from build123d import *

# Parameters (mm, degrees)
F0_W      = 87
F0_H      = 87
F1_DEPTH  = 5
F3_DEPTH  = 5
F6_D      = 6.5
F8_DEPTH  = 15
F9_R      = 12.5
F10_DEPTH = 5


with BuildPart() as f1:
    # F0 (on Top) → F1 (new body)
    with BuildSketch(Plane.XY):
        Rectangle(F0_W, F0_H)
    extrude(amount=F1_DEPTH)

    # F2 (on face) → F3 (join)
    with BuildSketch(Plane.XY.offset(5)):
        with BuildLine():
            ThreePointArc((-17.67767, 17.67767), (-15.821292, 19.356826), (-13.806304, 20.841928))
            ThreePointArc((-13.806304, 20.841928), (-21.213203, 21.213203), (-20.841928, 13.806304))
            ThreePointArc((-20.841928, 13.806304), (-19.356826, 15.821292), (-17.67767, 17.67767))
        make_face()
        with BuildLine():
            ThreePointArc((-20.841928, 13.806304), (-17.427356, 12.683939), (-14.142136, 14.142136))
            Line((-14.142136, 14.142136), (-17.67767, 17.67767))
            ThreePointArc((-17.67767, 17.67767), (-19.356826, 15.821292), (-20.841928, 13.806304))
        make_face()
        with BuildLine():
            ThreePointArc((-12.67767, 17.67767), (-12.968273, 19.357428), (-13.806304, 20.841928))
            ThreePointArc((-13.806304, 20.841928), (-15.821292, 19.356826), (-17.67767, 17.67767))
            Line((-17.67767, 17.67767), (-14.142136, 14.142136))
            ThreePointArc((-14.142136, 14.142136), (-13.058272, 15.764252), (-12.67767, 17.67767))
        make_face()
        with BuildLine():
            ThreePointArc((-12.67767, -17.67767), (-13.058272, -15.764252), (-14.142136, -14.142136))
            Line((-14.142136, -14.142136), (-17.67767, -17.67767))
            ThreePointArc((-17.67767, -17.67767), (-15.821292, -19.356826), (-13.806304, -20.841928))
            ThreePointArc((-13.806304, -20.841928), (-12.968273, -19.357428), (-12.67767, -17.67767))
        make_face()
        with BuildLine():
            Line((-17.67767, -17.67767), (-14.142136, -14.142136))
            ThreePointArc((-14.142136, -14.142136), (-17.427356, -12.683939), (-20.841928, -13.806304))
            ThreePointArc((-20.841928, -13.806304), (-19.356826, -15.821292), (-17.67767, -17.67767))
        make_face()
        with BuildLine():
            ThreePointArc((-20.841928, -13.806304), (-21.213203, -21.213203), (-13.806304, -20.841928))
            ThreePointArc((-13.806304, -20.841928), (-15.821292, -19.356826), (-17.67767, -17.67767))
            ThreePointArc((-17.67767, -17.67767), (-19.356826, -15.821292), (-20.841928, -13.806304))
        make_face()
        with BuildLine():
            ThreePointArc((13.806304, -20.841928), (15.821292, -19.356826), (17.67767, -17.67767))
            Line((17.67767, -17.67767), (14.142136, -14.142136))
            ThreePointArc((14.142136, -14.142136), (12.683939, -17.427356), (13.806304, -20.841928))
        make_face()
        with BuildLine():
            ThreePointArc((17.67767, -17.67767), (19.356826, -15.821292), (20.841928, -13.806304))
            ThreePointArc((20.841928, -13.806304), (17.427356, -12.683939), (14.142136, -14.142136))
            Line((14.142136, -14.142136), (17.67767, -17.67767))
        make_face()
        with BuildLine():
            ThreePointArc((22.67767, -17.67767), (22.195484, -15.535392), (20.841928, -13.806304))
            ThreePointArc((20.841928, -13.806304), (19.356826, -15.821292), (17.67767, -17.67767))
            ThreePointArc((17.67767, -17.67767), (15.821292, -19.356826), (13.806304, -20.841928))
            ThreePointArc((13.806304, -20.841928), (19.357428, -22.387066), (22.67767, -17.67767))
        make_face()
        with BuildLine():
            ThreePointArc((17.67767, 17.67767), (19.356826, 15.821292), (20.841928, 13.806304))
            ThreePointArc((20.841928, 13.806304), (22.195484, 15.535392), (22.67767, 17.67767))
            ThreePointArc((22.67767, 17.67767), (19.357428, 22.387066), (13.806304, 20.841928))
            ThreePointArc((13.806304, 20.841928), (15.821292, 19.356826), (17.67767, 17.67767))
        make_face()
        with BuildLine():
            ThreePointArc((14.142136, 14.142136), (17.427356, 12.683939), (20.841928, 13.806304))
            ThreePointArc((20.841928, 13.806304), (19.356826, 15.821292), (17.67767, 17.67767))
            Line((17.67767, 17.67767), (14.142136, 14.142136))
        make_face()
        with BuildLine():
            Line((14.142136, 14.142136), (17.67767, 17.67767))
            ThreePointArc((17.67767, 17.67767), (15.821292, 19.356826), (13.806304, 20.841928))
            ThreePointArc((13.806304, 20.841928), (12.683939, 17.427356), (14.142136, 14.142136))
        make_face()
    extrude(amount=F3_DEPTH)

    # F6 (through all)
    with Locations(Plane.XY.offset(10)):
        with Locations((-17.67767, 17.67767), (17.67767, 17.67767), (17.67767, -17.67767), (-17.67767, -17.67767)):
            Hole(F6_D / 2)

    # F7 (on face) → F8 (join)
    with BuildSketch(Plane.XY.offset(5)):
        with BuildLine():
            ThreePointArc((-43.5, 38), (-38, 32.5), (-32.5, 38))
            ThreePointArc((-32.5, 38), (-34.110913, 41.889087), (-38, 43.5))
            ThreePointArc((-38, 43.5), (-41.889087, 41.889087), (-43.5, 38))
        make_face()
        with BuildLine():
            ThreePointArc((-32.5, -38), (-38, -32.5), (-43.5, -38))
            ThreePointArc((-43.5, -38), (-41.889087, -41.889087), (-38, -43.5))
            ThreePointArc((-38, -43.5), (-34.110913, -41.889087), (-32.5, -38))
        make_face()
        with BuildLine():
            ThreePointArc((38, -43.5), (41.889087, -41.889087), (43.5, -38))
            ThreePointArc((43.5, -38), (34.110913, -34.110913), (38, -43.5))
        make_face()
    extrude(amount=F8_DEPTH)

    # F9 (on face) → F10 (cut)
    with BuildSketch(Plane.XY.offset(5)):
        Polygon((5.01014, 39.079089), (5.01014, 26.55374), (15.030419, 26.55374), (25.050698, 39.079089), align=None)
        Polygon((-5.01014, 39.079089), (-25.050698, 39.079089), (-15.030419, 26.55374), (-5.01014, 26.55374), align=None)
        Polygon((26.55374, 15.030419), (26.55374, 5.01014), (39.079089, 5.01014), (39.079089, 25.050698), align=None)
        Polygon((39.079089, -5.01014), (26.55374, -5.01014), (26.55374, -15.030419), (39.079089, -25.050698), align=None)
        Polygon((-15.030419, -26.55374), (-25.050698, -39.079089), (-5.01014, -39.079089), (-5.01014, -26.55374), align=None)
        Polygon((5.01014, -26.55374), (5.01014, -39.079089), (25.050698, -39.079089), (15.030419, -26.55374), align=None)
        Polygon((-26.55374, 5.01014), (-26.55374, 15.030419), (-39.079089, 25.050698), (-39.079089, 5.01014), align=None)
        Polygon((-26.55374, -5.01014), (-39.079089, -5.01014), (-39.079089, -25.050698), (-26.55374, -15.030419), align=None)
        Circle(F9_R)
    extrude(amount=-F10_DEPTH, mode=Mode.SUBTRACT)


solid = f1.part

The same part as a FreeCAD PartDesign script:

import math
import FreeCAD as App
import Part
import Sketcher
Q = App.Units.Quantity

doc = App.newDocument("Part")
params = doc.addObject("Spreadsheet::Sheet", "Params")
for row, (alias, value) in enumerate([
    ("sketch1_width", "87 mm"),
    ("pad1_length", "5 mm"),
    ("sketch2_radius", "5 mm"),
    ("pad2_length", "5 mm"),
    ("sketch3_diameter", "6.5 mm"),
    ("hole_diameter", "6.5 mm"),
    ("sketch4_radius", "5.5 mm"),
    ("pad3_length", "15 mm"),
    ("sketch5_diameter", "25 mm"),
    ("pocket1_length", "5 mm"),
], start=1):
    params.set(f"A{row}", alias)
    params.set(f"B{row}", "=" + value)
    params.setAlias(f"B{row}", alias)

body = doc.addObject("PartDesign::Body", "Body")

sketch1 = body.newObject("Sketcher::SketchObject", "Sketch")
sketch1.AttachmentSupport = (doc.getObject("XY_Plane"), [""])
sketch1.MapMode = "FlatFace"
sketch1.addGeometry(Part.LineSegment(App.Vector(-43.5, 43.5, 0), App.Vector(-43.5, -43.5, 0)), False)
sketch1.addGeometry(Part.LineSegment(App.Vector(-43.5, -43.5, 0), App.Vector(43.5, -43.5, 0)), False)
sketch1.addGeometry(Part.LineSegment(App.Vector(43.5, -43.5, 0), App.Vector(43.5, 43.5, 0)), False)
sketch1.addGeometry(Part.LineSegment(App.Vector(43.5, 43.5, 0), App.Vector(-43.5, 43.5, 0)), False)
sketch1.addConstraint(Sketcher.Constraint("Coincident", 0, 2, 1, 1))
sketch1.addConstraint(Sketcher.Constraint("Coincident", 1, 2, 2, 1))
sketch1.addConstraint(Sketcher.Constraint("Coincident", 2, 2, 3, 1))
sketch1.addConstraint(Sketcher.Constraint("Coincident", 3, 2, 0, 1))
sketch1.addConstraint(Sketcher.Constraint("Vertical", 0))
sketch1.addConstraint(Sketcher.Constraint("Horizontal", 1))
sketch1.addConstraint(Sketcher.Constraint("Vertical", 2))
sketch1.addConstraint(Sketcher.Constraint("Horizontal", 3))
sketch1.addConstraint(Sketcher.Constraint("Symmetric", 0, 2, 2, 2, -1, 1))
sketch1.addConstraint(Sketcher.Constraint("Equal", 3, 0))
sketch1.addConstraint(Sketcher.Constraint("DistanceX", 1, 1, 1, 2, Q("87 mm")))
sketch1.setExpression("Constraints[10]", "Params.sketch1_width")
pad1 = body.newObject("PartDesign::Pad", "Pad")
pad1.Profile = sketch1
pad1.setExpression("Length", "Params.pad1_length")

sketch2 = body.newObject("Sketcher::SketchObject", "Sketch001")
sketch2.AttachmentSupport = (doc.getObject("XY_Plane"), [""])
sketch2.MapMode = "FlatFace"
sketch2.AttachmentOffset = App.Placement(App.Vector(0, 0, 5), App.Rotation())
sketch2.addGeometry(Part.ArcOfCircle(Part.Circle(App.Vector(-17.677669, 17.677669, 0), App.Vector(0, 0, 1), 5), math.radians(39.260837), math.radians(230.739163)), False)
sketch2.addGeometry(Part.ArcOfCircle(Part.Circle(App.Vector(-17.67767, 17.677668, 0), App.Vector(0, 0, 1), 4.999999), math.radians(-129.260831), math.radians(-44.999987)), False)
sketch2.addGeometry(Part.ArcOfCircle(Part.Circle(App.Vector(-17.677663, 17.677667, 0), App.Vector(0, 0, 1), 4.999993), math.radians(-45.000031), math.radians(0.000034)), False)
sketch2.addGeometry(Part.ArcOfCircle(Part.Circle(App.Vector(-17.677662, 17.677674, 0), App.Vector(0, 0, 1), 4.999992), math.radians(-0.000041), math.radians(39.26085)), False)
sketch2.addGeometry(Part.ArcOfCircle(Part.Circle(App.Vector(-17.677663, -17.677667, 0), App.Vector(0, 0, 1), 4.999993), math.radians(-0.000034), math.radians(45.000031)), False)
sketch2.addGeometry(Part.ArcOfCircle(Part.Circle(App.Vector(-17.67767, -17.677668, 0), App.Vector(0, 0, 1), 4.999999), math.radians(44.999987), math.radians(129.260831)), False)
sketch2.addGeometry(Part.ArcOfCircle(Part.Circle(App.Vector(-17.677669, -17.677669, 0), App.Vector(0, 0, 1), 5), math.radians(129.260837), math.radians(320.739163)), False)
sketch2.addGeometry(Part.ArcOfCircle(Part.Circle(App.Vector(-17.677662, -17.677674, 0), App.Vector(0, 0, 1), 4.999992), math.radians(-39.26085), math.radians(0.000041)), False)
sketch2.addGeometry(Part.ArcOfCircle(Part.Circle(App.Vector(17.67767, -17.677668, 0), App.Vector(0, 0, 1), 4.999999), math.radians(50.739169), math.radians(135.000013)), False)
sketch2.addGeometry(Part.ArcOfCircle(Part.Circle(App.Vector(17.677668, -17.67767, 0), App.Vector(0, 0, 1), 4.999999), math.radians(134.999987), math.radians(219.260831)), False)
sketch2.addGeometry(Part.ArcOfCircle(Part.Circle(App.Vector(17.67767, -17.677669, 0), App.Vector(0, 0, 1), 5), math.radians(-140.739173), math.radians(-0.000006)), False)
sketch2.addGeometry(Part.ArcOfCircle(Part.Circle(App.Vector(17.677667, -17.677671, 0), App.Vector(0, 0, 1), 5.000003), math.radians(0.000013), math.radians(50.739159)), False)
sketch2.addGeometry(Part.ArcOfCircle(Part.Circle(App.Vector(17.677667, 17.677671, 0), App.Vector(0, 0, 1), 5.000003), math.radians(-50.739159), math.radians(-0.000013)), False)
sketch2.addGeometry(Part.ArcOfCircle(Part.Circle(App.Vector(17.67767, 17.677669, 0), App.Vector(0, 0, 1), 5), math.radians(0.000006), math.radians(140.739173)), False)
sketch2.addGeometry(Part.ArcOfCircle(Part.Circle(App.Vector(17.677668, 17.67767, 0), App.Vector(0, 0, 1), 4.999999), math.radians(140.739169), math.radians(225.000013)), False)
sketch2.addGeometry(Part.ArcOfCircle(Part.Circle(App.Vector(17.67767, 17.677668, 0), App.Vector(0, 0, 1), 4.999999), math.radians(-135.000013), math.radians(-50.739169)), False)
sketch2.addConstraint(Sketcher.Constraint("Tangent", 0, 2, 1, 1))
sketch2.addConstraint(Sketcher.Constraint("Tangent", 1, 2, 2, 1))
sketch2.addConstraint(Sketcher.Constraint("Tangent", 2, 2, 3, 1))
sketch2.addConstraint(Sketcher.Constraint("Tangent", 3, 2, 0, 1))
sketch2.addConstraint(Sketcher.Constraint("Tangent", 4, 2, 5, 1))
sketch2.addConstraint(Sketcher.Constraint("Tangent", 5, 2, 6, 1))
sketch2.addConstraint(Sketcher.Constraint("Tangent", 6, 2, 7, 1))
sketch2.addConstraint(Sketcher.Constraint("Tangent", 7, 2, 4, 1))
sketch2.addConstraint(Sketcher.Constraint("Tangent", 8, 2, 9, 1))
sketch2.addConstraint(Sketcher.Constraint("Tangent", 9, 2, 10, 1))
sketch2.addConstraint(Sketcher.Constraint("Tangent", 10, 2, 11, 1))
sketch2.addConstraint(Sketcher.Constraint("Tangent", 11, 2, 8, 1))
sketch2.addConstraint(Sketcher.Constraint("Tangent", 12, 2, 13, 1))
sketch2.addConstraint(Sketcher.Constraint("Tangent", 13, 2, 14, 1))
sketch2.addConstraint(Sketcher.Constraint("Tangent", 14, 2, 15, 1))
sketch2.addConstraint(Sketcher.Constraint("Tangent", 15, 2, 12, 1))
sketch2.addConstraint(Sketcher.Constraint("Equal", 0, 1))
sketch2.addConstraint(Sketcher.Constraint("Equal", 3, 4))
sketch2.addConstraint(Sketcher.Constraint("Equal", 1, 5))
sketch2.addConstraint(Sketcher.Constraint("Equal", 6, 8))
sketch2.addConstraint(Sketcher.Constraint("Equal", 8, 9))
sketch2.addConstraint(Sketcher.Constraint("Equal", 11, 12))
sketch2.addConstraint(Sketcher.Constraint("Equal", 10, 13))
sketch2.addConstraint(Sketcher.Constraint("Symmetric", 0, 3, 8, 3, -1, 1))
sketch2.addConstraint(Sketcher.Constraint("Symmetric", 4, 3, 12, 3, -1, 1))
sketch2.addConstraint(Sketcher.Constraint("Symmetric", 4, 3, 8, 3, -2))
sketch2.addConstraint(Sketcher.Constraint("Horizontal", 15, 3, 2, 2))
sketch2.addConstraint(Sketcher.Constraint("Horizontal", 11, 3, 7, 2))
sketch2.addConstraint(Sketcher.Constraint("Horizontal", 4, 2, 8, 2))
sketch2.addConstraint(Sketcher.Constraint("Horizontal", 6, 2, 9, 2))
sketch2.addConstraint(Sketcher.Constraint("Horizontal", 7, 2, 10, 2))
sketch2.addConstraint(Sketcher.Constraint("Horizontal", 5, 2, 11, 2))
sketch2.addConstraint(Sketcher.Constraint("Horizontal", 2, 2, 12, 2))
sketch2.addConstraint(Sketcher.Constraint("Horizontal", 3, 2, 13, 2))
sketch2.addConstraint(Sketcher.Constraint("Horizontal", 1, 2, 14, 2))
sketch2.addConstraint(Sketcher.Constraint("Horizontal", 0, 2, 15, 2))
sketch2.addConstraint(Sketcher.Constraint("Vertical", 1, 2, 4, 2))
sketch2.addConstraint(Sketcher.Constraint("Vertical", 0, 2, 5, 2))
sketch2.addConstraint(Sketcher.Constraint("Vertical", 3, 2, 6, 2))
sketch2.addConstraint(Sketcher.Constraint("Radius", 0, Q("5 mm")))
sketch2.addConstraint(Sketcher.Constraint("DistanceX", 0, 3, -1, 1, Q("17.677669 mm")))
sketch2.addConstraint(Sketcher.Constraint("DistanceY", -1, 1, 0, 3, Q("17.677669 mm")))
sketch2.addConstraint(Sketcher.Constraint("DistanceY", -1, 1, 3, 2, Q("20.841928 mm")))
sketch2.addConstraint(Sketcher.Constraint("DistanceX", 5, 2, -1, 1, Q("20.841928 mm")))
sketch2.addConstraint(Sketcher.Constraint("DistanceY", 1, 2, 2, 3, Q("3.535531 mm")))
sketch2.setExpression("Constraints[39]", "Params.sketch2_radius")
pad2 = body.newObject("PartDesign::Pad", "Pad001")
pad2.Profile = sketch2
pad2.setExpression("Length", "Params.pad2_length")

sketch3 = body.newObject("Sketcher::SketchObject", "Sketch002")
sketch3.AttachmentSupport = (doc.getObject("XY_Plane"), [""])
sketch3.MapMode = "FlatFace"
sketch3.AttachmentOffset = App.Placement(App.Vector(0, 0, 10), App.Rotation())
sketch3.addGeometry(Part.Circle(App.Vector(-17.67767, 17.67767, 0), App.Vector(0, 0, 1), 3.25), False)
sketch3.addGeometry(Part.Circle(App.Vector(17.67767, 17.67767, 0), App.Vector(0, 0, 1), 3.25), False)
sketch3.addGeometry(Part.Circle(App.Vector(17.67767, -17.67767, 0), App.Vector(0, 0, 1), 3.25), False)
sketch3.addGeometry(Part.Circle(App.Vector(-17.67767, -17.67767, 0), App.Vector(0, 0, 1), 3.25), False)
sketch3.addConstraint(Sketcher.Constraint("Equal", 0, 1))
sketch3.addConstraint(Sketcher.Constraint("Equal", 1, 2))
sketch3.addConstraint(Sketcher.Constraint("Equal", 2, 3))
sketch3.addConstraint(Sketcher.Constraint("Symmetric", 0, 3, 2, 3, -1, 1))
sketch3.addConstraint(Sketcher.Constraint("Symmetric", 1, 3, 3, 3, -1, 1))
sketch3.addConstraint(Sketcher.Constraint("Symmetric", 0, 3, 1, 3, -2))
sketch3.addConstraint(Sketcher.Constraint("Diameter", 0, Q("6.5 mm")))
sketch3.addConstraint(Sketcher.Constraint("DistanceX", 0, 3, -1, 1, Q("17.67767 mm")))
sketch3.addConstraint(Sketcher.Constraint("DistanceY", -1, 1, 0, 3, Q("17.67767 mm")))
sketch3.setExpression("Constraints[6]", "Params.sketch3_diameter")
doc.recompute()
hole = body.newObject("PartDesign::Hole", "Hole")
hole.Profile = sketch3
hole.ThreadType = "None"
hole.setExpression("Diameter", "Params.hole_diameter")
hole.DepthType = "ThroughAll"

sketch4 = body.newObject("Sketcher::SketchObject", "Sketch003")
sketch4.AttachmentSupport = (doc.getObject("XY_Plane"), [""])
sketch4.MapMode = "FlatFace"
sketch4.AttachmentOffset = App.Placement(App.Vector(0, 0, 5), App.Rotation())
sketch4.addGeometry(Part.ArcOfCircle(Part.Circle(App.Vector(-38, 38, 0), App.Vector(0, 0, 1), 5.5), math.radians(180), math.radians(360)), False)
sketch4.addGeometry(Part.ArcOfCircle(Part.Circle(App.Vector(-38.000001, 37.999999, 0), App.Vector(0, 0, 1), 5.500001), math.radians(0.000011), math.radians(89.999989)), False)
sketch4.addGeometry(Part.ArcOfCircle(Part.Circle(App.Vector(-37.999999, 37.999999, 0), App.Vector(0, 0, 1), 5.500001), math.radians(90.000011), math.radians(179.999989)), False)
sketch4.addGeometry(Part.ArcOfCircle(Part.Circle(App.Vector(-38, -38, 0), App.Vector(0, 0, 1), 5.5), math.radians(0), math.radians(180)), False)
sketch4.addGeometry(Part.ArcOfCircle(Part.Circle(App.Vector(-37.999999, -37.999999, 0), App.Vector(0, 0, 1), 5.500001), math.radians(-179.999989), math.radians(-90.000011)), False)
sketch4.addGeometry(Part.ArcOfCircle(Part.Circle(App.Vector(-38.000001, -37.999999, 0), App.Vector(0, 0, 1), 5.500001), math.radians(-89.999989), math.radians(-0.000011)), False)
sketch4.addGeometry(Part.ArcOfCircle(Part.Circle(App.Vector(37.999999, -37.999999, 0), App.Vector(0, 0, 1), 5.500001), math.radians(-89.999989), math.radians(-0.000011)), False)
sketch4.addGeometry(Part.ArcOfCircle(Part.Circle(App.Vector(38, -38, 0), App.Vector(0, 0, 1), 5.5), math.radians(0.000002), math.radians(269.999998)), False)
sketch4.addConstraint(Sketcher.Constraint("Tangent", 0, 2, 1, 1))
sketch4.addConstraint(Sketcher.Constraint("Tangent", 1, 2, 2, 1))
sketch4.addConstraint(Sketcher.Constraint("Tangent", 2, 2, 0, 1))
sketch4.addConstraint(Sketcher.Constraint("Tangent", 3, 2, 4, 1))
sketch4.addConstraint(Sketcher.Constraint("Tangent", 4, 2, 5, 1))
sketch4.addConstraint(Sketcher.Constraint("Tangent", 5, 2, 3, 1))
sketch4.addConstraint(Sketcher.Constraint("Tangent", 6, 1, 7, 2))
sketch4.addConstraint(Sketcher.Constraint("Coincident", 7, 1, 6, 2))
sketch4.addConstraint(Sketcher.Constraint("Equal", 2, 3))
sketch4.addConstraint(Sketcher.Constraint("Equal", 5, 6))
sketch4.addConstraint(Sketcher.Constraint("Symmetric", 0, 3, 6, 3, -1, 1))
sketch4.addConstraint(Sketcher.Constraint("Symmetric", 3, 3, 6, 3, -2))
sketch4.addConstraint(Sketcher.Constraint("Horizontal", 2, 3, 0, 2))
sketch4.addConstraint(Sketcher.Constraint("Horizontal", 0, 2, 2, 2))
sketch4.addConstraint(Sketcher.Constraint("Horizontal", 7, 3, 3, 2))
sketch4.addConstraint(Sketcher.Constraint("Horizontal", 3, 2, 5, 2))
sketch4.addConstraint(Sketcher.Constraint("Horizontal", 5, 2, 7, 1))
sketch4.addConstraint(Sketcher.Constraint("Vertical", 5, 3, 1, 2))
sketch4.addConstraint(Sketcher.Constraint("Vertical", 1, 2, 4, 2))
sketch4.addConstraint(Sketcher.Constraint("Vertical", 7, 3, 6, 1))
sketch4.addConstraint(Sketcher.Constraint("Radius", 0, Q("5.5 mm")))
sketch4.addConstraint(Sketcher.Constraint("DistanceX", 0, 3, -1, 1, Q("38 mm")))
sketch4.addConstraint(Sketcher.Constraint("DistanceY", -1, 1, 0, 3, Q("38 mm")))
sketch4.setExpression("Constraints[20]", "Params.sketch4_radius")
pad3 = body.newObject("PartDesign::Pad", "Pad002")
pad3.Profile = sketch4
pad3.setExpression("Length", "Params.pad3_length")

sketch5 = body.newObject("Sketcher::SketchObject", "Sketch004")
sketch5.AttachmentSupport = (doc.getObject("XY_Plane"), [""])
sketch5.MapMode = "FlatFace"
sketch5.AttachmentOffset = App.Placement(App.Vector(0, 0, 5), App.Rotation())
sketch5.addGeometry(Part.LineSegment(App.Vector(5.01014, 39.079089, 0), App.Vector(5.01014, 26.55374, 0)), False)
sketch5.addGeometry(Part.LineSegment(App.Vector(5.01014, 26.55374, 0), App.Vector(15.030419, 26.55374, 0)), False)
sketch5.addGeometry(Part.LineSegment(App.Vector(15.030419, 26.55374, 0), App.Vector(25.050698, 39.079089, 0)), False)
sketch5.addGeometry(Part.LineSegment(App.Vector(25.050698, 39.079089, 0), App.Vector(5.01014, 39.079089, 0)), False)
sketch5.addGeometry(Part.LineSegment(App.Vector(-5.01014, 39.079089, 0), App.Vector(-25.050698, 39.079089, 0)), False)
sketch5.addGeometry(Part.LineSegment(App.Vector(-25.050698, 39.079089, 0), App.Vector(-15.030419, 26.55374, 0)), False)
sketch5.addGeometry(Part.LineSegment(App.Vector(-15.030419, 26.55374, 0), App.Vector(-5.01014, 26.55374, 0)), False)
sketch5.addGeometry(Part.LineSegment(App.Vector(-5.01014, 26.55374, 0), App.Vector(-5.01014, 39.079089, 0)), False)
sketch5.addGeometry(Part.LineSegment(App.Vector(26.55374, 15.030419, 0), App.Vector(26.55374, 5.01014, 0)), False)
sketch5.addGeometry(Part.LineSegment(App.Vector(26.55374, 5.01014, 0), App.Vector(39.079089, 5.01014, 0)), False)
sketch5.addGeometry(Part.LineSegment(App.Vector(39.079089, 5.01014, 0), App.Vector(39.079089, 25.050698, 0)), False)
sketch5.addGeometry(Part.LineSegment(App.Vector(39.079089, 25.050698, 0), App.Vector(26.55374, 15.030419, 0)), False)
sketch5.addGeometry(Part.LineSegment(App.Vector(39.079089, -5.01014, 0), App.Vector(26.55374, -5.01014, 0)), False)
sketch5.addGeometry(Part.LineSegment(App.Vector(26.55374, -5.01014, 0), App.Vector(26.55374, -15.030419, 0)), False)
sketch5.addGeometry(Part.LineSegment(App.Vector(26.55374, -15.030419, 0), App.Vector(39.079089, -25.050698, 0)), False)
sketch5.addGeometry(Part.LineSegment(App.Vector(39.079089, -25.050698, 0), App.Vector(39.079089, -5.01014, 0)), False)
sketch5.addGeometry(Part.LineSegment(App.Vector(-15.030419, -26.55374, 0), App.Vector(-25.050698, -39.079089, 0)), False)
sketch5.addGeometry(Part.LineSegment(App.Vector(-25.050698, -39.079089, 0), App.Vector(-5.01014, -39.079089, 0)), False)
sketch5.addGeometry(Part.LineSegment(App.Vector(-5.01014, -39.079089, 0), App.Vector(-5.01014, -26.55374, 0)), False)
sketch5.addGeometry(Part.LineSegment(App.Vector(-5.01014, -26.55374, 0), App.Vector(-15.030419, -26.55374, 0)), False)
sketch5.addGeometry(Part.LineSegment(App.Vector(5.01014, -26.55374, 0), App.Vector(5.01014, -39.079089, 0)), False)
sketch5.addGeometry(Part.LineSegment(App.Vector(5.01014, -39.079089, 0), App.Vector(25.050698, -39.079089, 0)), False)
sketch5.addGeometry(Part.LineSegment(App.Vector(25.050698, -39.079089, 0), App.Vector(15.030419, -26.55374, 0)), False)
sketch5.addGeometry(Part.LineSegment(App.Vector(15.030419, -26.55374, 0), App.Vector(5.01014, -26.55374, 0)), False)
sketch5.addGeometry(Part.LineSegment(App.Vector(-26.55374, 5.01014, 0), App.Vector(-26.55374, 15.030419, 0)), False)
sketch5.addGeometry(Part.LineSegment(App.Vector(-26.55374, 15.030419, 0), App.Vector(-39.079089, 25.050698, 0)), False)
sketch5.addGeometry(Part.LineSegment(App.Vector(-39.079089, 25.050698, 0), App.Vector(-39.079089, 5.01014, 0)), False)
sketch5.addGeometry(Part.LineSegment(App.Vector(-39.079089, 5.01014, 0), App.Vector(-26.55374, 5.01014, 0)), False)
sketch5.addGeometry(Part.LineSegment(App.Vector(-26.55374, -5.01014, 0), App.Vector(-39.079089, -5.01014, 0)), False)
sketch5.addGeometry(Part.LineSegment(App.Vector(-39.079089, -5.01014, 0), App.Vector(-39.079089, -25.050698, 0)), False)
sketch5.addGeometry(Part.LineSegment(App.Vector(-39.079089, -25.050698, 0), App.Vector(-26.55374, -15.030419, 0)), False)
sketch5.addGeometry(Part.LineSegment(App.Vector(-26.55374, -15.030419, 0), App.Vector(-26.55374, -5.01014, 0)), False)
sketch5.addGeometry(Part.Circle(App.Vector(0, 0, 0), App.Vector(0, 0, 1), 12.5), False)
sketch5.addConstraint(Sketcher.Constraint("Coincident", 0, 2, 1, 1))
sketch5.addConstraint(Sketcher.Constraint("Coincident", 1, 2, 2, 1))
sketch5.addConstraint(Sketcher.Constraint("Coincident", 2, 2, 3, 1))
sketch5.addConstraint(Sketcher.Constraint("Coincident", 3, 2, 0, 1))
sketch5.addConstraint(Sketcher.Constraint("Coincident", 4, 2, 5, 1))
sketch5.addConstraint(Sketcher.Constraint("Coincident", 5, 2, 6, 1))
sketch5.addConstraint(Sketcher.Constraint("Coincident", 6, 2, 7, 1))
sketch5.addConstraint(Sketcher.Constraint("Coincident", 7, 2, 4, 1))
sketch5.addConstraint(Sketcher.Constraint("Coincident", 8, 2, 9, 1))
sketch5.addConstraint(Sketcher.Constraint("Coincident", 9, 2, 10, 1))
sketch5.addConstraint(Sketcher.Constraint("Coincident", 10, 2, 11, 1))
sketch5.addConstraint(Sketcher.Constraint("Coincident", 11, 2, 8, 1))
sketch5.addConstraint(Sketcher.Constraint("Coincident", 12, 2, 13, 1))
sketch5.addConstraint(Sketcher.Constraint("Coincident", 13, 2, 14, 1))
sketch5.addConstraint(Sketcher.Constraint("Coincident", 14, 2, 15, 1))
sketch5.addConstraint(Sketcher.Constraint("Coincident", 15, 2, 12, 1))
sketch5.addConstraint(Sketcher.Constraint("Coincident", 16, 2, 17, 1))
sketch5.addConstraint(Sketcher.Constraint("Coincident", 17, 2, 18, 1))
sketch5.addConstraint(Sketcher.Constraint("Coincident", 18, 2, 19, 1))
sketch5.addConstraint(Sketcher.Constraint("Coincident", 19, 2, 16, 1))
sketch5.addConstraint(Sketcher.Constraint("Coincident", 20, 2, 21, 1))
sketch5.addConstraint(Sketcher.Constraint("Coincident", 21, 2, 22, 1))
sketch5.addConstraint(Sketcher.Constraint("Coincident", 22, 2, 23, 1))
sketch5.addConstraint(Sketcher.Constraint("Coincident", 23, 2, 20, 1))
sketch5.addConstraint(Sketcher.Constraint("Coincident", 24, 2, 25, 1))
sketch5.addConstraint(Sketcher.Constraint("Coincident", 25, 2, 26, 1))
sketch5.addConstraint(Sketcher.Constraint("Coincident", 26, 2, 27, 1))
sketch5.addConstraint(Sketcher.Constraint("Coincident", 27, 2, 24, 1))
sketch5.addConstraint(Sketcher.Constraint("Coincident", 28, 2, 29, 1))
sketch5.addConstraint(Sketcher.Constraint("Coincident", 29, 2, 30, 1))
sketch5.addConstraint(Sketcher.Constraint("Coincident", 30, 2, 31, 1))
sketch5.addConstraint(Sketcher.Constraint("Coincident", 31, 2, 28, 1))
sketch5.addConstraint(Sketcher.Constraint("Vertical", 0))
sketch5.addConstraint(Sketcher.Constraint("Horizontal", 1))
sketch5.addConstraint(Sketcher.Constraint("Horizontal", 3))
sketch5.addConstraint(Sketcher.Constraint("Horizontal", 4))
sketch5.addConstraint(Sketcher.Constraint("Horizontal", 6))
sketch5.addConstraint(Sketcher.Constraint("Vertical", 7))
sketch5.addConstraint(Sketcher.Constraint("Vertical", 8))
sketch5.addConstraint(Sketcher.Constraint("Horizontal", 9))
sketch5.addConstraint(Sketcher.Constraint("Vertical", 10))
sketch5.addConstraint(Sketcher.Constraint("Horizontal", 12))
sketch5.addConstraint(Sketcher.Constraint("Vertical", 13))
sketch5.addConstraint(Sketcher.Constraint("Vertical", 15))
sketch5.addConstraint(Sketcher.Constraint("Horizontal", 17))
sketch5.addConstraint(Sketcher.Constraint("Vertical", 18))
sketch5.addConstraint(Sketcher.Constraint("Horizontal", 19))
sketch5.addConstraint(Sketcher.Constraint("Vertical", 20))
sketch5.addConstraint(Sketcher.Constraint("Horizontal", 21))
sketch5.addConstraint(Sketcher.Constraint("Horizontal", 23))
sketch5.addConstraint(Sketcher.Constraint("Vertical", 24))
sketch5.addConstraint(Sketcher.Constraint("Vertical", 26))
sketch5.addConstraint(Sketcher.Constraint("Horizontal", 27))
sketch5.addConstraint(Sketcher.Constraint("Horizontal", 28))
sketch5.addConstraint(Sketcher.Constraint("Vertical", 29))
sketch5.addConstraint(Sketcher.Constraint("Vertical", 31))
sketch5.addConstraint(Sketcher.Constraint("Coincident", 32, 3, -1, 1))
sketch5.addConstraint(Sketcher.Constraint("Symmetric", 2, 2, 16, 2, -1, 1))
sketch5.addConstraint(Sketcher.Constraint("Symmetric", 0, 2, 18, 2, -1, 1))
sketch5.addConstraint(Sketcher.Constraint("Symmetric", 7, 2, 20, 2, -1, 1))
sketch5.addConstraint(Sketcher.Constraint("Symmetric", 5, 2, 22, 2, -1, 1))
sketch5.addConstraint(Sketcher.Constraint("Symmetric", 13, 2, 24, 2, -1, 1))
sketch5.addConstraint(Sketcher.Constraint("Symmetric", 14, 2, 25, 2, -1, 1))
sketch5.addConstraint(Sketcher.Constraint("Symmetric", 9, 2, 28, 2, -1, 1))
sketch5.addConstraint(Sketcher.Constraint("Symmetric", 11, 2, 30, 2, -1, 1))
sketch5.addConstraint(Sketcher.Constraint("Symmetric", 2, 2, 4, 2, -2))
sketch5.addConstraint(Sketcher.Constraint("Symmetric", 1, 2, 5, 2, -2))
sketch5.addConstraint(Sketcher.Constraint("Symmetric", 11, 2, 24, 2, -2))
sketch5.addConstraint(Sketcher.Constraint("Symmetric", 10, 2, 25, 2, -2))
sketch5.addConstraint(Sketcher.Constraint("Perpendicular", 5, 11))
sketch5.addConstraint(Sketcher.Constraint("Perpendicular", 14, 16))
sketch5.addConstraint(Sketcher.Constraint("Perpendicular", 11, 22))
sketch5.addConstraint(Sketcher.Constraint("Perpendicular", 22, 30))
sketch5.addConstraint(Sketcher.Constraint("Horizontal", 9, 2, 26, 2))
sketch5.addConstraint(Sketcher.Constraint("Horizontal", 15, 2, 28, 2))
sketch5.addConstraint(Sketcher.Constraint("Vertical", 7, 2, 17, 2))
sketch5.addConstraint(Sketcher.Constraint("Equal", 28, 0))
sketch5.addConstraint(Sketcher.Constraint("Equal", 23, 8))
sketch5.addConstraint(Sketcher.Constraint("Diameter", 32, Q("25 mm")))
sketch5.addConstraint(Sketcher.Constraint("DistanceX", 1, 1, 1, 2, Q("10.020279 mm")))
sketch5.addConstraint(Sketcher.Constraint("DistanceX", 3, 2, 3, 1, Q("20.040558 mm")))
sketch5.addConstraint(Sketcher.Constraint("DistanceX", 9, 1, 9, 2, Q("12.525349 mm")))
sketch5.addConstraint(Sketcher.Constraint("DistanceX", -1, 1, 2, 2, Q("25.050698 mm")))
sketch5.addConstraint(Sketcher.Constraint("DistanceY", -1, 1, 10, 2, Q("25.050698 mm")))
sketch5.addConstraint(Sketcher.Constraint("DistanceY", 8, 2, 1, 2, Q("21.5436 mm")))
sketch5.addConstraint(Sketcher.Constraint("DistanceX", 0, 2, 8, 2, Q("21.5436 mm")))
sketch5.setExpression("Constraints[78]", "Params.sketch5_diameter")
pocket1 = body.newObject("PartDesign::Pocket", "Pocket")
pocket1.Profile = sketch5
pocket1.setExpression("Length", "Params.pocket1_length")

doc.recompute()
